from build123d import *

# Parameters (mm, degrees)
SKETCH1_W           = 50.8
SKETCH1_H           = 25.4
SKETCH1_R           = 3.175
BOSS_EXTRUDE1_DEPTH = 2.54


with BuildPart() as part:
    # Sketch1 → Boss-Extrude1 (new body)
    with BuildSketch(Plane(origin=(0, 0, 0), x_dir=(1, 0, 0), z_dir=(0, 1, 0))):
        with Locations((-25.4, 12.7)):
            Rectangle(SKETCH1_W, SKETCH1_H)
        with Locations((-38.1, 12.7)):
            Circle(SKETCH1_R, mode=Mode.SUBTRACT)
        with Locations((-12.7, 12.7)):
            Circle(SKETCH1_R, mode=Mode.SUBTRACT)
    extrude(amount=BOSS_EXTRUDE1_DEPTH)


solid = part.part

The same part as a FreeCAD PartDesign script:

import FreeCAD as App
import Part
import Sketcher

V = App.Vector
Q = App.Units.Quantity

doc = App.newDocument("Part")
body = doc.addObject("PartDesign::Body", "Body")

# Sketch on XZ plane
sketch1 = doc.addObject("Sketcher::SketchObject", "Sketch")
body.addObject(sketch1)
sketch1.AttachmentSupport = (doc.XZ_Plane, [""])
sketch1.MapMode = "FlatFace"
sketch1.addGeometry(Part.LineSegment(V(-50.8, -25.4, 0), V(-50.8, 0, 0)), False)
sketch1.addGeometry(Part.LineSegment(V(-50.8, 0, 0), V(0, 0, 0)), False)
sketch1.addGeometry(Part.LineSegment(V(0, 0, 0), V(0, -25.4, 0)), False)
sketch1.addGeometry(Part.LineSegment(V(0, -25.4, 0), V(-50.8, -25.4, 0)), False)
sketch1.addGeometry(Part.Circle(V(-38.1, -12.7, 0), V(0, 0, 1), 3.2), False)
sketch1.addGeometry(Part.Circle(V(-12.7, -12.7, 0), V(0, 0, 1), 3.2), False)
sketch1.addConstraint(Sketcher.Constraint("Coincident", 0, 2, 1, 1))
sketch1.addConstraint(Sketcher.Constraint("Coincident", 1, 2, 2, 1))
sketch1.addConstraint(Sketcher.Constraint("Coincident", 2, 2, 3, 1))
sketch1.addConstraint(Sketcher.Constraint("Coincident", 3, 2, 0, 1))
sketch1.addConstraint(Sketcher.Constraint("Vertical", 0))
sketch1.addConstraint(Sketcher.Constraint("Horizontal", 1))
sketch1.addConstraint(Sketcher.Constraint("Vertical", 2))
sketch1.addConstraint(Sketcher.Constraint("Horizontal", 3))
sketch1.addConstraint(Sketcher.Constraint("Coincident", 1, 2, -1, 1))
sketch1.addConstraint(Sketcher.Constraint("Equal", 4, 5))
sketch1.addConstraint(Sketcher.Constraint("Horizontal", 4, 3, 5, 3))
sketch1.addConstraint(Sketcher.Constraint("Diameter", 4, Q("0.25 in")))
sketch1.addConstraint(Sketcher.Constraint("DistanceX", 1, 1, 1, 2, Q("2 in")))
sketch1.addConstraint(Sketcher.Constraint("DistanceY", 0, 1, 0, 2, Q("1 in")))
sketch1.addConstraint(Sketcher.Constraint("DistanceX", 4, 3, 5, 3, Q("1 in")))
sketch1.addConstraint(Sketcher.Constraint("DistanceX", 4, 3, -1, 1, Q("1.5 in")))
sketch1.addConstraint(Sketcher.Constraint("DistanceY", 4, 3, -1, 1, Q("0.5 in")))
pad1 = doc.addObject("PartDesign::Pad", "Pad")
body.addObject(pad1)
pad1.Profile = sketch1
pad1.Length = Q("0.1 in")
pad1.Reversed = True

doc.recompute()
